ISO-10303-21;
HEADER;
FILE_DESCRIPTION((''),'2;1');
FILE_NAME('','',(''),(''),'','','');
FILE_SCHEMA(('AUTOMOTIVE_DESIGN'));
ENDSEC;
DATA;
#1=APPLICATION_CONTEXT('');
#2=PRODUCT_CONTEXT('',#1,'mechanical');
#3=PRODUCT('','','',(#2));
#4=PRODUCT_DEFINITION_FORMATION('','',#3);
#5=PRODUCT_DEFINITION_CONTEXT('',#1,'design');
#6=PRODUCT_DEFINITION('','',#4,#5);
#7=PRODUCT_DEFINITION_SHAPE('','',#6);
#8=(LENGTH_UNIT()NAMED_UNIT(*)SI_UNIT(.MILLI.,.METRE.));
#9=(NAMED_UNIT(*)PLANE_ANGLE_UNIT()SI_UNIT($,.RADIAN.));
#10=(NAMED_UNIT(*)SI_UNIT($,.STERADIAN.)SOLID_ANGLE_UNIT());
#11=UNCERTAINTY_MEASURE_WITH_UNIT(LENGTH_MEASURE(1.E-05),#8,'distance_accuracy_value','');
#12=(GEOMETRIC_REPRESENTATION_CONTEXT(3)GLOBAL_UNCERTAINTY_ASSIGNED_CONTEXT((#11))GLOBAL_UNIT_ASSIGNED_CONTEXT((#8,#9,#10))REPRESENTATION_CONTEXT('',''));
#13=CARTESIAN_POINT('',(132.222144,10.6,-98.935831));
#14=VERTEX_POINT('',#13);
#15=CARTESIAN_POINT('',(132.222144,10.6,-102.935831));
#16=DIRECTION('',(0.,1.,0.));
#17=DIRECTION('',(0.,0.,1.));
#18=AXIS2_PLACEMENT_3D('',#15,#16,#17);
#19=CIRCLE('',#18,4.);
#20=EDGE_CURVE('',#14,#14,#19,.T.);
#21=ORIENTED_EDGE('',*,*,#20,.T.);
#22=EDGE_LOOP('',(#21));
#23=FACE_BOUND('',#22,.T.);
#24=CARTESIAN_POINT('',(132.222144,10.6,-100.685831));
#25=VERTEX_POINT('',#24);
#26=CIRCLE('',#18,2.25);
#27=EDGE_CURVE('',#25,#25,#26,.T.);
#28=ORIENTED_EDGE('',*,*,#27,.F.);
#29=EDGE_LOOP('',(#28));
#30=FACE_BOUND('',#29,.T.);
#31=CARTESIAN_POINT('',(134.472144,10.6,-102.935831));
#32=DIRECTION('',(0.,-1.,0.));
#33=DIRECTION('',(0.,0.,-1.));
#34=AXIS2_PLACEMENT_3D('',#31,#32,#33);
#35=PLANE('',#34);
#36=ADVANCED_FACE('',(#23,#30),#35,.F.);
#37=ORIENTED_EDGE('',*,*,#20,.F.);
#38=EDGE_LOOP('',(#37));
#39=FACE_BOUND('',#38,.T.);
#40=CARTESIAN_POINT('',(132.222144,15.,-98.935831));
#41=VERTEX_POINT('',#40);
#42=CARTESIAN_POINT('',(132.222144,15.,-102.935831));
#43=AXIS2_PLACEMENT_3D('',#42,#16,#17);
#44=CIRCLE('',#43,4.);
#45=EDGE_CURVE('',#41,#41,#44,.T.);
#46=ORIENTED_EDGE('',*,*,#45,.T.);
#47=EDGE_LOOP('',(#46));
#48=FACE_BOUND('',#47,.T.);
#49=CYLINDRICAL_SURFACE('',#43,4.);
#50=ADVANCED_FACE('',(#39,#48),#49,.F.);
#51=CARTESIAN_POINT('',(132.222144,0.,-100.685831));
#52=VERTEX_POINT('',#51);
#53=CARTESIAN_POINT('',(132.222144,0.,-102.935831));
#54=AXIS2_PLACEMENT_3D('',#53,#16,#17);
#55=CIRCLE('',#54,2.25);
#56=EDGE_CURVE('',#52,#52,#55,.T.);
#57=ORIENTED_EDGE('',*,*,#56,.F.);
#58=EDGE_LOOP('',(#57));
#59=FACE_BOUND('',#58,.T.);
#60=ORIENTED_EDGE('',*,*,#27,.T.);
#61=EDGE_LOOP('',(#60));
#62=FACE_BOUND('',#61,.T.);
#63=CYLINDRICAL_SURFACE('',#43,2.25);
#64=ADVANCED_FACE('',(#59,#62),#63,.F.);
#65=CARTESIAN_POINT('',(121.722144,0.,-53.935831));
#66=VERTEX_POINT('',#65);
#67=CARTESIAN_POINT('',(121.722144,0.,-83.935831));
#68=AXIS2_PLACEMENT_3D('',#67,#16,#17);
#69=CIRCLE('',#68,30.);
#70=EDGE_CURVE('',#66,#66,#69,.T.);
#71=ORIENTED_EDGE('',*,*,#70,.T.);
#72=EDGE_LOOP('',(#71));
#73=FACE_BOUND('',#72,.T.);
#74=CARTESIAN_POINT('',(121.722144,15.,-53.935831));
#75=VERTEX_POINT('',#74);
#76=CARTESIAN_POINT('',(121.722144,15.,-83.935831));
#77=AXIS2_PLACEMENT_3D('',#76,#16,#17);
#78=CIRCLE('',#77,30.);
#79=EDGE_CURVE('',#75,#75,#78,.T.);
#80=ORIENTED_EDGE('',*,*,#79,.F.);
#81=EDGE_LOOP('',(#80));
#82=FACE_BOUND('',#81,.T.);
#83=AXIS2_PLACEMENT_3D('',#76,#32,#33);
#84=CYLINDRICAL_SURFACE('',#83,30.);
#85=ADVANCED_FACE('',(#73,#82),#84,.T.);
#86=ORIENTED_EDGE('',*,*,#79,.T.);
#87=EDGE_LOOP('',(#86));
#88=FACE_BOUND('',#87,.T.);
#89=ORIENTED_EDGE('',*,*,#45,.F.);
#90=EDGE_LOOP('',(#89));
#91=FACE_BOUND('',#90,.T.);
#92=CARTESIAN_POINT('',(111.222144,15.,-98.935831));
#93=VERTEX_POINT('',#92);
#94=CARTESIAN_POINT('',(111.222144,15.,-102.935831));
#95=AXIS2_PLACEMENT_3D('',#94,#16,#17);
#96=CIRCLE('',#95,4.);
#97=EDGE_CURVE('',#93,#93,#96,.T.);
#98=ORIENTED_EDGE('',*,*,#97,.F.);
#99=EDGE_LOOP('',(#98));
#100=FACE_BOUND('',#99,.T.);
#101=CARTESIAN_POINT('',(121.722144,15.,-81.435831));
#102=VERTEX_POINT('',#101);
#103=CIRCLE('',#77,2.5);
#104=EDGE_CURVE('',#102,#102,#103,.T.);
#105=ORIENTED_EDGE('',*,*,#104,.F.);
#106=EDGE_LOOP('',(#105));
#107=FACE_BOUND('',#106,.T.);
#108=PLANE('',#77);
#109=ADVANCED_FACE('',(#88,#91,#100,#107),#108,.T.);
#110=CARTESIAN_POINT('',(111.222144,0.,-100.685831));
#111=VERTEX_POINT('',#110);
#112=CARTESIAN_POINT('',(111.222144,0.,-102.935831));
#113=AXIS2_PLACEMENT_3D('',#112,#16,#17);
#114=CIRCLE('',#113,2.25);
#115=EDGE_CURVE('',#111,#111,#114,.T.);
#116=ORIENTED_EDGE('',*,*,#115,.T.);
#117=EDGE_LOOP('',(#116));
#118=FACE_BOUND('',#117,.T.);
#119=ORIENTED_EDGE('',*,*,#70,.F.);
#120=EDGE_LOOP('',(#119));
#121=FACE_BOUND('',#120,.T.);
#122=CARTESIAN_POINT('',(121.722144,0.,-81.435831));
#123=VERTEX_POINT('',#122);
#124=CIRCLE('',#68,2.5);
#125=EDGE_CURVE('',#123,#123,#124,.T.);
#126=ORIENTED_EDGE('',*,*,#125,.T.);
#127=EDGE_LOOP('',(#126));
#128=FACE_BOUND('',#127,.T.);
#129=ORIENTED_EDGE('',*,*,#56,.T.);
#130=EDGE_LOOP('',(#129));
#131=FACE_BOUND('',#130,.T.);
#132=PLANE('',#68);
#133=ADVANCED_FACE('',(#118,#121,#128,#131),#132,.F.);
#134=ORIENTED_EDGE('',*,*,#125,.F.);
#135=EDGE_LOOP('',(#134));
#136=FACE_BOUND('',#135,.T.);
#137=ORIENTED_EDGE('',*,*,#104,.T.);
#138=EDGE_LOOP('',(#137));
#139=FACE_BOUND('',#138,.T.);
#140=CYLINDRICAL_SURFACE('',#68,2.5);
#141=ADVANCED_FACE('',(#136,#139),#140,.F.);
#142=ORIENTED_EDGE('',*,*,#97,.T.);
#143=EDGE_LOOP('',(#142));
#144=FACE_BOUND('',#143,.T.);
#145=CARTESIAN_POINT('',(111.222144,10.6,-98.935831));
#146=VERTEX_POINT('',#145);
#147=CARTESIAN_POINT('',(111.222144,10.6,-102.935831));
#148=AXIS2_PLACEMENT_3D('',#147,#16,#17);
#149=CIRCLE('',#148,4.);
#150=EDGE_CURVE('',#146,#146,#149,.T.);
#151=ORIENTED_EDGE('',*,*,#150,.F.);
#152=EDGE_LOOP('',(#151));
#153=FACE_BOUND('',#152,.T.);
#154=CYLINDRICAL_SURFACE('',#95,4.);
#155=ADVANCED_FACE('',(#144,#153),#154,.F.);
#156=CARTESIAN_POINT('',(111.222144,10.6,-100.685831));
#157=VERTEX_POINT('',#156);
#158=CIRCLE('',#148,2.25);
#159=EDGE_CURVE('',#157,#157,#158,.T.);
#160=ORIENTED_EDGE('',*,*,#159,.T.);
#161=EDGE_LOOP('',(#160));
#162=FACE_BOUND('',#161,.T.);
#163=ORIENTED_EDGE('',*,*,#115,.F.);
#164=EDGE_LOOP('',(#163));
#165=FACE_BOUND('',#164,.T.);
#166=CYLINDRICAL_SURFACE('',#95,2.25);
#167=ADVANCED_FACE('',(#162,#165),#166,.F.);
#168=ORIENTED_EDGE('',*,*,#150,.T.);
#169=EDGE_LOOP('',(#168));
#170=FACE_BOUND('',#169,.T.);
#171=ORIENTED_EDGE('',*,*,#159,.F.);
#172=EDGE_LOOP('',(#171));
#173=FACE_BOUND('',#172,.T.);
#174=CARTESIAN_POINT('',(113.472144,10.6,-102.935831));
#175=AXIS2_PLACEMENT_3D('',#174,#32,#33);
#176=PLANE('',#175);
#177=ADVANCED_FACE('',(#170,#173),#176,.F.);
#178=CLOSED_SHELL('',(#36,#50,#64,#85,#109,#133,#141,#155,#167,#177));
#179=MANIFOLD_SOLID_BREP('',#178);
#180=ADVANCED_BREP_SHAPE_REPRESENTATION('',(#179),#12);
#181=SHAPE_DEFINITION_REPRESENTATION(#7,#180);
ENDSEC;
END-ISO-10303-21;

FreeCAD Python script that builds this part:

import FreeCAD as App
import Part
import Sketcher
from FreeCAD import Vector
Q = App.Units.Quantity

doc = App.newDocument("Part")
body = doc.addObject("PartDesign::Body", "Body")

sketch1 = body.newObject("Sketcher::SketchObject", "Sketch")
sketch1.AttachmentSupport = (doc.getObject("XZ_Plane"), [""])
sketch1.MapMode = "FlatFace"
sketch1.addGeometry(Part.Circle(Vector(122, -84, 0), Vector(0, 0, 1), 30), False)
sketch1.addConstraint([
    Sketcher.Constraint("Diameter", 0, Q("60 mm")),
    Sketcher.Constraint("DistanceY", 0, 3, -1, 1, Q("83.935831 mm")),
    Sketcher.Constraint("DistanceX", -1, 1, 0, 3, Q("121.722144 mm")),
])
pad1 = body.newObject("PartDesign::Pad", "Pad")
pad1.Profile = sketch1
pad1.Length = 15
pad1.Reversed = True

sketch2 = body.newObject("Sketcher::SketchObject", "Sketch001")
sketch2.AttachmentSupport = (doc.getObject("XZ_Plane"), [""])
sketch2.MapMode = "FlatFace"
sketch2.AttachmentOffset = App.Placement(Vector(0, 0, -15), App.Rotation())
sketch2.addGeometry(Part.Circle(Vector(121.7, -83.9, 0), Vector(0, 0, 1), 2.5), False)
sketch2.addConstraint([
    Sketcher.Constraint("Diameter", 0, Q("5 mm")),
    Sketcher.Constraint("DistanceY", 0, 3, -1, 1, Q("83.935831 mm")),
    Sketcher.Constraint("DistanceX", -1, 1, 0, 3, Q("121.722144 mm")),
])
pocket1 = body.newObject("PartDesign::Pocket", "Pocket")
pocket1.Profile = sketch2
pocket1.Length = 15
pocket1.Reversed = True

sketch3 = body.newObject("Sketcher::SketchObject", "Sketch002")
sketch3.AttachmentSupport = (doc.getObject("XZ_Plane"), [""])
sketch3.MapMode = "FlatFace"
sketch3.AttachmentOffset = App.Placement(Vector(0, 0, -15), App.Rotation())
sketch3.addGeometry([
    Part.Circle(Vector(132.2, -102.9, 0), Vector(0, 0, 1), 2.2),
    Part.Circle(Vector(111.2, -102.9, 0), Vector(0, 0, 1), 2.2),
], False)
sketch3.addConstraint([
    Sketcher.Constraint("Equal", 0, 1),
    Sketcher.Constraint("Horizontal", 0, 3, 1, 3),
    Sketcher.Constraint("Diameter", 0, Q("4.5 mm")),
    Sketcher.Constraint("DistanceX", 1, 3, 0, 3, Q("21 mm")),
    Sketcher.Constraint("DistanceY", 0, 3, -1, 1, Q("102.935831 mm")),
    Sketcher.Constraint("DistanceX", -1, 1, 0, 3, Q("132.222144 mm")),
])
doc.recompute()
hole = body.newObject("PartDesign::Hole", "Hole")
hole.Profile = sketch3
hole.ThreadType = "None"
hole.Diameter = 4.5
hole.DepthType = "Dimension"
hole.Depth = 15
hole.DrillPoint = "Flat"
hole.HoleCutType = "Counterbore"
hole.HoleCutDiameter = 8
hole.HoleCutDepth = 4.4
hole.Reversed = True

doc.recompute()
